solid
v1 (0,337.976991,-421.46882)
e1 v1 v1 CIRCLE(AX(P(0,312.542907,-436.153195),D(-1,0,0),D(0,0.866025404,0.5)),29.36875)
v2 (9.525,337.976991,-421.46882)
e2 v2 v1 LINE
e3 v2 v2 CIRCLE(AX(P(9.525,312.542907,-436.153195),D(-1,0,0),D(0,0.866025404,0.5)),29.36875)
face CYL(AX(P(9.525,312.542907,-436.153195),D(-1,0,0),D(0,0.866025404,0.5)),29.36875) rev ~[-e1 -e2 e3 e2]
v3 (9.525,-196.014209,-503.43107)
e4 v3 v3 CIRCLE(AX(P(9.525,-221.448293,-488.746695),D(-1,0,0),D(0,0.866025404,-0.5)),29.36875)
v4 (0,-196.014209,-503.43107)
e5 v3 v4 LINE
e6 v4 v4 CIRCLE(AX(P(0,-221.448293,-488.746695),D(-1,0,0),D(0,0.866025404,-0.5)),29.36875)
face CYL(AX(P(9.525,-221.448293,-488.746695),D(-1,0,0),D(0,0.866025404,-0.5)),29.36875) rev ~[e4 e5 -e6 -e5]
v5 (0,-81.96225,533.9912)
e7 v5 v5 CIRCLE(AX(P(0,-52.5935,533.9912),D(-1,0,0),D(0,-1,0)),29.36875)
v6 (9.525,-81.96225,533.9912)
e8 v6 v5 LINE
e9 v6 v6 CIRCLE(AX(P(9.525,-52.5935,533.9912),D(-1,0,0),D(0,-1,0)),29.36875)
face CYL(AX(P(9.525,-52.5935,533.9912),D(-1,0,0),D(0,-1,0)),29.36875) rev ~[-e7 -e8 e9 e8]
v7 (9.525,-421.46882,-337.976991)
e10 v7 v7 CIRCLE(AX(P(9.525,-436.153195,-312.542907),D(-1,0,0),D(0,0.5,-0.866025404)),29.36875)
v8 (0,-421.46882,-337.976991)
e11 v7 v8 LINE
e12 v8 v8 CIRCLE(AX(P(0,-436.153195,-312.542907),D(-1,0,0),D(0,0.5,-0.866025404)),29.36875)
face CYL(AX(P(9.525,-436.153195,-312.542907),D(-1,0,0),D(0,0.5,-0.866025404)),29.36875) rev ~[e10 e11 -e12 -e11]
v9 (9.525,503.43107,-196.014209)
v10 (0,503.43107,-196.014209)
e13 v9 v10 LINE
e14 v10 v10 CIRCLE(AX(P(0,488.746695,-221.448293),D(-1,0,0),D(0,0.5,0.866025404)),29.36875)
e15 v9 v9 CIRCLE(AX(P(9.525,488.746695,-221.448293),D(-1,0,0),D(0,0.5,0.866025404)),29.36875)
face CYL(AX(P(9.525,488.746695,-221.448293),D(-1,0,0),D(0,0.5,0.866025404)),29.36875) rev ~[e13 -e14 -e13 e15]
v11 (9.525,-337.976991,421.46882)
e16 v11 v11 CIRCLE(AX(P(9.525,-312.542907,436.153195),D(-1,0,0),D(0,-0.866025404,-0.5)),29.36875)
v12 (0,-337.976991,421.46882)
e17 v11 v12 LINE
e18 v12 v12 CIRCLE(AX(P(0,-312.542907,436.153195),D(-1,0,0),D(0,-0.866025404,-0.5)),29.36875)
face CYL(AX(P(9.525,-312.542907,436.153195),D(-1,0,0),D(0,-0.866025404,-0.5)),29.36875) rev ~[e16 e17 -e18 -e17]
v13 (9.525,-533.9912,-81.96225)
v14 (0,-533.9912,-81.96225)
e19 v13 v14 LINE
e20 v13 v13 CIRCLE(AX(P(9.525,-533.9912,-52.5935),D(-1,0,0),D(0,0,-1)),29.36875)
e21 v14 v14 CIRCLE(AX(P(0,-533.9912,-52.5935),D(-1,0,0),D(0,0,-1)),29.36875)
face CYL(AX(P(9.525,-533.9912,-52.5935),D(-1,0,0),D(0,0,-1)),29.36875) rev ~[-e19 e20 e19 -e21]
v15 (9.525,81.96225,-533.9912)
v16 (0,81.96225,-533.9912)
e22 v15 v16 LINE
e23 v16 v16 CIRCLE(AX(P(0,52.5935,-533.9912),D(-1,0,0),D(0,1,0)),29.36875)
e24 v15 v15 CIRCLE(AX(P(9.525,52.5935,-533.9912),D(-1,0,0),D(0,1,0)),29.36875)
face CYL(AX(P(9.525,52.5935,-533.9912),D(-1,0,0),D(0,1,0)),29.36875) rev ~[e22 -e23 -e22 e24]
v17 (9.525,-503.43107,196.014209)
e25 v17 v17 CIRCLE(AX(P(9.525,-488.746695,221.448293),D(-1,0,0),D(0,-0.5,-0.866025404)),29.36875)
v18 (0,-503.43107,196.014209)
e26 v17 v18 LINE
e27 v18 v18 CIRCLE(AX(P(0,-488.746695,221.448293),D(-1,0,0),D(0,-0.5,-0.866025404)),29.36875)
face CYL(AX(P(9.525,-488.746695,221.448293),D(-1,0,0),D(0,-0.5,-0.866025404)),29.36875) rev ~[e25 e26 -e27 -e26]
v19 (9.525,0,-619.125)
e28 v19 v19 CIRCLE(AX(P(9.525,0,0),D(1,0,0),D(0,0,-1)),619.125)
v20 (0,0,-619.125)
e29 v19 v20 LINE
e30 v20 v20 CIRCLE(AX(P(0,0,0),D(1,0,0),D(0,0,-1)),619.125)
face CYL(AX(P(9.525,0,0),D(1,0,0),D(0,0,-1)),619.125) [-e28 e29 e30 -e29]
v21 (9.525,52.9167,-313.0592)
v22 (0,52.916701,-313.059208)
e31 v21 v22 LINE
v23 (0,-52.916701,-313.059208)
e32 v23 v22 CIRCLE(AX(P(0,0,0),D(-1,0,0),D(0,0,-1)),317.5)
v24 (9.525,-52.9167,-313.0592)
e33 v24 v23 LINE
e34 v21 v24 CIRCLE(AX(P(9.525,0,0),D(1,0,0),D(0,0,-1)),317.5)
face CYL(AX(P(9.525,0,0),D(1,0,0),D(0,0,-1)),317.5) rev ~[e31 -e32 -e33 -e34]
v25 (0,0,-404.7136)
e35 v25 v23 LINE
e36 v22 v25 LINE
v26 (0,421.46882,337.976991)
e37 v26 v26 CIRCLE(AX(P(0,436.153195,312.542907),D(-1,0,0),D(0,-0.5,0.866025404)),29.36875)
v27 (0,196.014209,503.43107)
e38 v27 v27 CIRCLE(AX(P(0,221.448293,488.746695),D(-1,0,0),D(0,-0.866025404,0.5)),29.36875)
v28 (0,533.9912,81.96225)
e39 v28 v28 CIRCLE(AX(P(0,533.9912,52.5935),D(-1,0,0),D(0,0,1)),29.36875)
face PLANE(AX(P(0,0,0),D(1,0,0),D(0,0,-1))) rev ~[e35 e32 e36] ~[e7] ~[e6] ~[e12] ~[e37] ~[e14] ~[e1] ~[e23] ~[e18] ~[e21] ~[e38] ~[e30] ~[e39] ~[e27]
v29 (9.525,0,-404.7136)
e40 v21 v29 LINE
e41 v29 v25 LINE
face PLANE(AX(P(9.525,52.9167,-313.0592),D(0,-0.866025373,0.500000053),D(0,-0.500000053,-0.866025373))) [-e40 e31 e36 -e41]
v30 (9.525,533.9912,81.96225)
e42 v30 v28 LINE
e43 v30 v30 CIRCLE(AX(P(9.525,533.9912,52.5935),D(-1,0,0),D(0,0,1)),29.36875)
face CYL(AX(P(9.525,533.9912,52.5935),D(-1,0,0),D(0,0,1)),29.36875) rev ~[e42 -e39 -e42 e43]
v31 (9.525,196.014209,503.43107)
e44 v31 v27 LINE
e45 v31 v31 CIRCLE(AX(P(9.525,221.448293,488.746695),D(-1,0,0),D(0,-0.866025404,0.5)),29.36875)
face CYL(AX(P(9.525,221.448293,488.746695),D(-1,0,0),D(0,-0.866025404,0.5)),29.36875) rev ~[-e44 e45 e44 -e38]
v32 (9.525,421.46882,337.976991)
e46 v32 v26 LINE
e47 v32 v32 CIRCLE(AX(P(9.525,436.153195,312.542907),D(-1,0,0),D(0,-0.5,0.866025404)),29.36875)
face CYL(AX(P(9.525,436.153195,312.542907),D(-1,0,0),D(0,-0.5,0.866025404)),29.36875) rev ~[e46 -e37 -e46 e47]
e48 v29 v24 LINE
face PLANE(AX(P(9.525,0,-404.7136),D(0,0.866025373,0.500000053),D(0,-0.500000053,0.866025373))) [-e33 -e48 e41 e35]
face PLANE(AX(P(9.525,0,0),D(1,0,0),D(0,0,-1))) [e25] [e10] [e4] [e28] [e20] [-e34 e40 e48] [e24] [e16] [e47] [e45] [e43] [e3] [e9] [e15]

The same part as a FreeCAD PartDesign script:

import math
import FreeCAD as App
import Part
import Sketcher

V = App.Vector
Q = App.Units.Quantity

doc = App.newDocument("Part")
body = doc.addObject("PartDesign::Body", "Body")

# Sketch on YZ plane
sketch1 = doc.addObject("Sketcher::SketchObject", "Sketch")
body.addObject(sketch1)
sketch1.AttachmentSupport = (doc.YZ_Plane, [""])
sketch1.MapMode = "FlatFace"
sketch1.AttachmentOffset = App.Placement(V(0, 0, 0.375 * 25.4), App.Rotation())
sketch1.addGeometry(Part.Circle(V(0, 0, 0), V(0, 0, 1), 619), False)
sketch1.addGeometry(Part.Circle(V(0, 0, 0), V(0, 0, 1), 318), False)
sketch1.addConstraint(Sketcher.Constraint("Coincident", 0, 3, -1, 1))
sketch1.addConstraint(Sketcher.Constraint("Coincident", 1, 3, -1, 1))
sketch1.addConstraint(Sketcher.Constraint("Diameter", 1, Q("25 in")))
sketch1.addConstraint(Sketcher.Constraint("Diameter", 0, Q("48.75 in")))
pad1 = doc.addObject("PartDesign::Pad", "Pad")
body.addObject(pad1)
pad1.Profile = sketch1
pad1.Length = Q("0.375 in")
pad1.Reversed = True

# Sketch on YZ plane
sketch2 = doc.addObject("Sketcher::SketchObject", "Sketch001")
body.addObject(sketch2)
sketch2.AttachmentSupport = (doc.YZ_Plane, [""])
sketch2.MapMode = "FlatFace"
sketch2.AttachmentOffset = App.Placement(V(0, 0, 0.375 * 25.4), App.Rotation())
sketch2.addGeometry(Part.Circle(V(-534, -53, 0), V(0, 0, 1), 29), False)
sketch2.addConstraint(Sketcher.Constraint("Diameter", 0, Q("2.3125 in")))
sketch2.addConstraint(Sketcher.Constraint("DistanceY", 0, 3, -1, 1, Q("2.0706 in")))
sketch2.addConstraint(Sketcher.Constraint("DistanceX", 0, 3, -1, 1, Q("533.9912 mm")))
doc.recompute()
hole = doc.addObject("PartDesign::Hole", "Hole")
body.addObject(hole)
hole.Profile = sketch2
hole.ThreadType = "None"
hole.Diameter = Q("2.3125 in")
hole.DepthType = "Dimension"
hole.Depth = Q("0.375 in")
hole.DrillPoint = "Angled"
hole.DrillPointAngle = 118
doc.recompute()

polarpattern = doc.addObject("PartDesign::PolarPattern", "PolarPattern")
body.addObject(polarpattern)
polarpattern.Originals = [hole]
polarpattern.Axis = (doc.X_Axis, [""])
polarpattern.Angle = 360
polarpattern.Occurrences = 12
body.Tip = polarpattern

# Sketch on YZ plane
sketch3 = doc.addObject("Sketcher::SketchObject", "Sketch002")
body.addObject(sketch3)
sketch3.AttachmentSupport = (doc.YZ_Plane, [""])
sketch3.MapMode = "FlatFace"
sketch3.AttachmentOffset = App.Placement(V(0, 0, 0.375 * 25.4), App.Rotation())
sketch3.addGeometry(Part.ArcOfCircle(Part.Circle(V(0, 0, 0), V(0, 0, 1), 318), math.radians(-99.59), math.radians(-80.41)), False)
sketch3.addGeometry(Part.LineSegment(V(-53, -313, 0), V(0, -405, 0)), False)
sketch3.addGeometry(Part.LineSegment(V(0, -405, 0), V(53, -313, 0)), False)
sketch3.addConstraint(Sketcher.Constraint("Coincident", 0, 1, 1, 1))
sketch3.addConstraint(Sketcher.Constraint("Coincident", 1, 2, 2, 1))
sketch3.addConstraint(Sketcher.Constraint("Coincident", 2, 2, 0, 2))
sketch3.addConstraint(Sketcher.Constraint("Coincident", 0, 3, -1, 1))
sketch3.addConstraint(Sketcher.Constraint("PointOnObject", 1, 2, -2))
sketch3.addConstraint(Sketcher.Constraint("Horizontal", 0, 1, 2, 2))
sketch3.addConstraint(Sketcher.Constraint("Radius", 0, Q("12.5 in")))
sketch3.addConstraint(Sketcher.Constraint("Angle", 1, Q("-60 deg")))
sketch3.addConstraint(Sketcher.Constraint("Distance", 1, Q("105.8334 mm")))
pocket1 = doc.addObject("PartDesign::Pocket", "Pocket")
body.addObject(pocket1)
pocket1.Profile = sketch3
pocket1.Type = "ThroughAll"

doc.recompute()
